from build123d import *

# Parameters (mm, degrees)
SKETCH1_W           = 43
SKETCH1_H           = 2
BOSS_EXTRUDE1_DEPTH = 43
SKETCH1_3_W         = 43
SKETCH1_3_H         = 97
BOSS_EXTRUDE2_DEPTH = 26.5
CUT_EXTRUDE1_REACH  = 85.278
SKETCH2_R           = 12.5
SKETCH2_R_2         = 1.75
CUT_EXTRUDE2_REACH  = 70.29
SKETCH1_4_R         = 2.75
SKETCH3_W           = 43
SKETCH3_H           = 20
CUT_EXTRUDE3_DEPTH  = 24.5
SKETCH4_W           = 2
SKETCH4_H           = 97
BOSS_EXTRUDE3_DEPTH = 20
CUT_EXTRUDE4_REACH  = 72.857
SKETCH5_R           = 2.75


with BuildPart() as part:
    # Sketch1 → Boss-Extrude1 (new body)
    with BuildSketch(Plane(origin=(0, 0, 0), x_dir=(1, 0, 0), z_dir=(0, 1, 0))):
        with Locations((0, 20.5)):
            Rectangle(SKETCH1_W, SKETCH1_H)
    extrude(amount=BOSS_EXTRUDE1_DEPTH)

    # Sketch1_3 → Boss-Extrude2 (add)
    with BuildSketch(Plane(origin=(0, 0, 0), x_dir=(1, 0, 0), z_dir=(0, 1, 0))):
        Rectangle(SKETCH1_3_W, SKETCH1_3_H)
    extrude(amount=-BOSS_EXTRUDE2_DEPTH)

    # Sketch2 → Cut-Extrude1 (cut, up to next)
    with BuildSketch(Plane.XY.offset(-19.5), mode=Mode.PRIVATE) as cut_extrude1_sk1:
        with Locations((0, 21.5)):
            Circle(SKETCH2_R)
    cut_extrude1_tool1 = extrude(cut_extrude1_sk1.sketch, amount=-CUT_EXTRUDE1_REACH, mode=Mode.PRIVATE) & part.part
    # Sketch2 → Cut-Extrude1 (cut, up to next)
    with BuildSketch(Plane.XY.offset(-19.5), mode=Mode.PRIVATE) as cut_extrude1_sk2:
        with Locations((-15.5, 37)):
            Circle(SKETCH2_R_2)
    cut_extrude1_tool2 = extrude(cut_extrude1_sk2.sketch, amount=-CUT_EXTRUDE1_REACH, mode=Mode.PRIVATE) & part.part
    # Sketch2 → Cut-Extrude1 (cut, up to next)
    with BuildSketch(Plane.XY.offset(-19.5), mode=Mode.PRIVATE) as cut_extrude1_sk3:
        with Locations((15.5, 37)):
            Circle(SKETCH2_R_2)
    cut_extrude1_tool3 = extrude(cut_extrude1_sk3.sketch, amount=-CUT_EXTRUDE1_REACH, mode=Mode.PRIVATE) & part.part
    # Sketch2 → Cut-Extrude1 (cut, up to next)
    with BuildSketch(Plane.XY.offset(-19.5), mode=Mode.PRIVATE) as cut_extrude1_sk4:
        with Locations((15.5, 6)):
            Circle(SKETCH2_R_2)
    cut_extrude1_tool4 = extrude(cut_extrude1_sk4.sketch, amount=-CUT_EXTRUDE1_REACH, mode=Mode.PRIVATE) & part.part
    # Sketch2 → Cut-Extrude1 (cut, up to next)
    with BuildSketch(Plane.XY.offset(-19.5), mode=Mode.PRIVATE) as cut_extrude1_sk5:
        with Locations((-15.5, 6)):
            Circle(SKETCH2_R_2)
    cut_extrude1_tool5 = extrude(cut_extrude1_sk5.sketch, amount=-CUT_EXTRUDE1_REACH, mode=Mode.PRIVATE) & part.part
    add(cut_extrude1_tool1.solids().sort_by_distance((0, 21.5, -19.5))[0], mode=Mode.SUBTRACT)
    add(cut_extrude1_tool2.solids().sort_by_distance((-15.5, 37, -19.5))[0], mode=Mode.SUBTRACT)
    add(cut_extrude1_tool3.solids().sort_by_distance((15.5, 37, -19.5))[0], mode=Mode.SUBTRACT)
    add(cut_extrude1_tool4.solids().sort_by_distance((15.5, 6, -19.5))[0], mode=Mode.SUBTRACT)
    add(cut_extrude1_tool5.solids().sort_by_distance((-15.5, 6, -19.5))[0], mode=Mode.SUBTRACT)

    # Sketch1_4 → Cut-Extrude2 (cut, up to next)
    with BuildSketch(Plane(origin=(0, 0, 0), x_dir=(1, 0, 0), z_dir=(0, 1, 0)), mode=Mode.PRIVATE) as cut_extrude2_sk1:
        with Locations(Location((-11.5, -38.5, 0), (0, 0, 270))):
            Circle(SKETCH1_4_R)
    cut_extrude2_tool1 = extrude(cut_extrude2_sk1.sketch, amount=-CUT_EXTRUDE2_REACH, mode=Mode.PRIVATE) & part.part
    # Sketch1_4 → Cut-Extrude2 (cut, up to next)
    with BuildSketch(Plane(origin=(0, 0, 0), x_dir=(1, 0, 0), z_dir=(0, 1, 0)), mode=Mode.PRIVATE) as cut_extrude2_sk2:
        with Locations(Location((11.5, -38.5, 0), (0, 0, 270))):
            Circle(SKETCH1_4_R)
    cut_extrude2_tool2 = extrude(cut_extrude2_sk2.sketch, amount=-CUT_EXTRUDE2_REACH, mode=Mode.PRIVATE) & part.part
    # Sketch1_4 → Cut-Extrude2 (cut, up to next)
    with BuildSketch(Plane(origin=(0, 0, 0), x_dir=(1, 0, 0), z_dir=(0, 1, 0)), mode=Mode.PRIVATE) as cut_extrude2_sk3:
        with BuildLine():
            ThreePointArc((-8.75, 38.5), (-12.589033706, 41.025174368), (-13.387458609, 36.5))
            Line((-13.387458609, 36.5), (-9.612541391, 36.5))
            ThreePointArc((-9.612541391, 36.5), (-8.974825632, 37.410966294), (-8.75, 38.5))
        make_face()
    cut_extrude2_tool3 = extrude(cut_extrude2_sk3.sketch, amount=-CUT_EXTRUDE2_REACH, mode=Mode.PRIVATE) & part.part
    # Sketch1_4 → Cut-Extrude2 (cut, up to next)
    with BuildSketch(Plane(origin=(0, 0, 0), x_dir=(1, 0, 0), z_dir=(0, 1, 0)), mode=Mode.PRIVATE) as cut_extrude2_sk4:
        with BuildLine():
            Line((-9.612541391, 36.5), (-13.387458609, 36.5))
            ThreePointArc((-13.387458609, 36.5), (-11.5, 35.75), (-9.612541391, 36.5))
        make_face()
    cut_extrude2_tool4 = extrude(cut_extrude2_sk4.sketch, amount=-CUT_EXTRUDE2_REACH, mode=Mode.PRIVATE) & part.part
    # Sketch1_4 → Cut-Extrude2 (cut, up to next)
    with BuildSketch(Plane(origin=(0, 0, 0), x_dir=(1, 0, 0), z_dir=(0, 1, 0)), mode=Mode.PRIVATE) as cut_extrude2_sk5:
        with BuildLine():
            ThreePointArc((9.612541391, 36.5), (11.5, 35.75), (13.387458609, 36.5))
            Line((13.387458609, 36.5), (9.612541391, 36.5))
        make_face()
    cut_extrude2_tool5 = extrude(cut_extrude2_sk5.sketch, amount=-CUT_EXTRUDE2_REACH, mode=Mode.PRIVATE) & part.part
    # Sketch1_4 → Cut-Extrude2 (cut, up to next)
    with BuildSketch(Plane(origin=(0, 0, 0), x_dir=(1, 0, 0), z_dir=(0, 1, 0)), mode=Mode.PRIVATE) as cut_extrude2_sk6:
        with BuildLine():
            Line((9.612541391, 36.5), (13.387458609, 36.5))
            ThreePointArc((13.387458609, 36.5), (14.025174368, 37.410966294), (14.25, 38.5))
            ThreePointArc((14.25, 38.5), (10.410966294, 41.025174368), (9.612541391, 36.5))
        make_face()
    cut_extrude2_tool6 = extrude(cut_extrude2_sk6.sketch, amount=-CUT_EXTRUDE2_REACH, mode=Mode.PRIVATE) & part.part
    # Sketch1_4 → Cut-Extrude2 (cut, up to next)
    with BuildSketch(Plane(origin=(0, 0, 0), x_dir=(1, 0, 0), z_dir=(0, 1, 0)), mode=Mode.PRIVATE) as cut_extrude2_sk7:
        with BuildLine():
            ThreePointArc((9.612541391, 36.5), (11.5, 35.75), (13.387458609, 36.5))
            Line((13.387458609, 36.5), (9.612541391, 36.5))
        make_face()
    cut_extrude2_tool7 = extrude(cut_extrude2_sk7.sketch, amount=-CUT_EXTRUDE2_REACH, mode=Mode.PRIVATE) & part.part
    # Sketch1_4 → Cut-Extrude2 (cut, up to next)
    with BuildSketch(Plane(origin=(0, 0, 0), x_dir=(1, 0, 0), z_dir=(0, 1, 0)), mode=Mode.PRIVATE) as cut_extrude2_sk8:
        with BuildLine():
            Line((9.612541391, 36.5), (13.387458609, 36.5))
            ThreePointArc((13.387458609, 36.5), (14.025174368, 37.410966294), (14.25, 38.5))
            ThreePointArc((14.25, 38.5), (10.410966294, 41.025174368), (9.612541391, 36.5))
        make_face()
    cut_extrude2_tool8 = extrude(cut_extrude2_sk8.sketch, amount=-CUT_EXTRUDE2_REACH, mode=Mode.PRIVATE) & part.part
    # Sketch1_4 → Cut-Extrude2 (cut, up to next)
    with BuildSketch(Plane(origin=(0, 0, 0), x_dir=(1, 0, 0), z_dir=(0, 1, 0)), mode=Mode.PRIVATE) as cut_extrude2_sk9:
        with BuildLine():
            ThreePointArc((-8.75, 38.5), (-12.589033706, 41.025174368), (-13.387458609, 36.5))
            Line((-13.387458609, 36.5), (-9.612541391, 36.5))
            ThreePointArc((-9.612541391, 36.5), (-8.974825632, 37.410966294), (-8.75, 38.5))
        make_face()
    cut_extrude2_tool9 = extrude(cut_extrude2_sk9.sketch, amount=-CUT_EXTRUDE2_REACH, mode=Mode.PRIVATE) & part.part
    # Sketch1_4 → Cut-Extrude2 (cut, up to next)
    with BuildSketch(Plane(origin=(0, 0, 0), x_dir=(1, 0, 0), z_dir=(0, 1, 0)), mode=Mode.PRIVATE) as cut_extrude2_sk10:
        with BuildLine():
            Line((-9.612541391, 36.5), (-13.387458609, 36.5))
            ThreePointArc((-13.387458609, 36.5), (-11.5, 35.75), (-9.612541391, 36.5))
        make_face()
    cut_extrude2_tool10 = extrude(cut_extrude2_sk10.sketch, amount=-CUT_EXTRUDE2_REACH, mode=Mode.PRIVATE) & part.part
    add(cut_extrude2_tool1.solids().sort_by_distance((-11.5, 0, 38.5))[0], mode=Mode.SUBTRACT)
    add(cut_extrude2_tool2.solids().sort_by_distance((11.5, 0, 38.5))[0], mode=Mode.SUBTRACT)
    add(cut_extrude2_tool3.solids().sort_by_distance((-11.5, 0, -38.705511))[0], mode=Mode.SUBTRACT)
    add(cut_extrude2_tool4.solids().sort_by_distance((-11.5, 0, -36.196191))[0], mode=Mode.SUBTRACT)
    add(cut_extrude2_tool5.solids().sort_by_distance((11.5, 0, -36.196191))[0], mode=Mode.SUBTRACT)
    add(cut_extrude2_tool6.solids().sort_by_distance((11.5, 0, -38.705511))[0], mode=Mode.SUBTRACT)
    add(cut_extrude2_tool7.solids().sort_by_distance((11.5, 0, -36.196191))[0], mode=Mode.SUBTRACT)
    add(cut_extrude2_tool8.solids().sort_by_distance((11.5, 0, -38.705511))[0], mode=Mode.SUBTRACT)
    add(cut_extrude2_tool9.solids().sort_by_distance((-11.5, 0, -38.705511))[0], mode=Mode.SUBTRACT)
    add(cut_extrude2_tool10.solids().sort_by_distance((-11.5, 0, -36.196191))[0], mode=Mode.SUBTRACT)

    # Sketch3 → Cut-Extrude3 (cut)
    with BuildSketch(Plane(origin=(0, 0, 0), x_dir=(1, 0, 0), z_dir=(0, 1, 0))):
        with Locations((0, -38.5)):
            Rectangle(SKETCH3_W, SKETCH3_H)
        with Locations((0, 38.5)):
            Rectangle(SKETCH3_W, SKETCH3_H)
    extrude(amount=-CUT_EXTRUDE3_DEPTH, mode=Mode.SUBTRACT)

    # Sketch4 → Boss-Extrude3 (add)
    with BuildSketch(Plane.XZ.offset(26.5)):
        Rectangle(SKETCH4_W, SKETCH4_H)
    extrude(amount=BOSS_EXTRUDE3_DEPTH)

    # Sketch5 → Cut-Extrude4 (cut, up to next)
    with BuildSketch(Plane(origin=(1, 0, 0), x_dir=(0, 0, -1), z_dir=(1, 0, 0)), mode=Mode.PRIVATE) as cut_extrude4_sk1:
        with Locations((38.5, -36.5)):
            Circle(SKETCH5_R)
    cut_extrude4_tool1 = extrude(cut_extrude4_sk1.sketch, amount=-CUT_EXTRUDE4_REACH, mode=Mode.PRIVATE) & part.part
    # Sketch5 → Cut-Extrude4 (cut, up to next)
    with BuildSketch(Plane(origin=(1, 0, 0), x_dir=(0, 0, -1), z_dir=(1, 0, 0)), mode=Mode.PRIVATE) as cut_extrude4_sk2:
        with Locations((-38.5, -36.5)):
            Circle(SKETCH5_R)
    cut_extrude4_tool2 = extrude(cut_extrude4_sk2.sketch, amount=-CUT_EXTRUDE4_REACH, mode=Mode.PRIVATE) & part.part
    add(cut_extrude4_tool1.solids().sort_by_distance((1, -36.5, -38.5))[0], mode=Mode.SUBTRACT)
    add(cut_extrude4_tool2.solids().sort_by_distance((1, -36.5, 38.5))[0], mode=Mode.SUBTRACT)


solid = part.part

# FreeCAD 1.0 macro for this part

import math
import FreeCAD as App
import Part
import Sketcher
from FreeCAD import Vector
Q = App.Units.Quantity


def add_polygon(sketch, points):
    """Adds a closed chain of lines whose ends are joined by coincident constraints."""
    first, n = sketch.GeometryCount, len(points)
    for a, b in zip(points, points[1:] + points[:1]):
        sketch.addGeometry(Part.LineSegment(App.Vector(*a, 0), App.Vector(*b, 0)), False)
    for i in range(n):
        sketch.addConstraint(Sketcher.Constraint("Coincident", first + i, 2, first + (i + 1) % n, 1))

doc = App.newDocument("Part")
body = doc.addObject("PartDesign::Body", "Body")

sketch1 = body.newObject("Sketcher::SketchObject", "Sketch")
sketch1.AttachmentSupport = (doc.getObject("XZ_Plane"), [""])
sketch1.MapMode = "FlatFace"
add_polygon(sketch1, [(-21.5, -21.5), (-21.5, -19.5), (21.5, -19.5), (21.5, -21.5)])
sketch1.addConstraint(Sketcher.Constraint("Vertical", 0))
sketch1.addConstraint(Sketcher.Constraint("Horizontal", 1))
sketch1.addConstraint(Sketcher.Constraint("Vertical", 2))
sketch1.addConstraint(Sketcher.Constraint("Horizontal", 3))
sketch1.addConstraint(Sketcher.Constraint("DistanceX", 1, 1, 1, 2, Q("43 mm")))
sketch1.addConstraint(Sketcher.Constraint("DistanceY", 0, 1, 0, 2, Q("2 mm")))
sketch1.addConstraint(Sketcher.Constraint("DistanceX", 0, 2, -1, 1, Q("21.5 mm")))
sketch1.addConstraint(Sketcher.Constraint("DistanceY", 0, 2, -1, 1, Q("19.5 mm")))
pad1 = body.newObject("PartDesign::Pad", "Pad")
pad1.Profile = sketch1
pad1.Length = 43
pad1.Reversed = True

sketch2 = body.newObject("Sketcher::SketchObject", "Sketch001")
sketch2.AttachmentSupport = (doc.getObject("XZ_Plane"), [""])
sketch2.MapMode = "FlatFace"
add_polygon(sketch2, [(-22, -48), (-22, 48), (22, 48), (22, -48)])
sketch2.addConstraint(Sketcher.Constraint("Vertical", 0))
sketch2.addConstraint(Sketcher.Constraint("Horizontal", 1))
sketch2.addConstraint(Sketcher.Constraint("Vertical", 2))
sketch2.addConstraint(Sketcher.Constraint("Horizontal", 3))
sketch2.addConstraint(Sketcher.Constraint("Symmetric", 0, 2, 2, 2, -1, 1))
sketch2.addConstraint(Sketcher.Constraint("DistanceX", 1, 1, 1, 2, Q("43 mm")))
sketch2.addConstraint(Sketcher.Constraint("DistanceY", 0, 1, 0, 2, Q("97 mm")))
pad2 = body.newObject("PartDesign::Pad", "Pad001")
pad2.Profile = sketch2
pad2.Length = 26.5

sketch3 = body.newObject("Sketcher::SketchObject", "Sketch002")
sketch3.AttachmentSupport = (doc.getObject("XY_Plane"), [""])
sketch3.MapMode = "FlatFace"
sketch3.AttachmentOffset = App.Placement(Vector(0, 0, -19.5), App.Rotation())
sketch3.addGeometry(Part.Circle(Vector(0, 22, 0), Vector(0, 0, 1), 12), False)
sketch3.addConstraint(Sketcher.Constraint("PointOnObject", 0, 3, -2))
sketch3.addConstraint(Sketcher.Constraint("Diameter", 0, Q("25 mm")))
sketch3.addConstraint(Sketcher.Constraint("DistanceY", -1, 1, 0, 3, Q("21.5 mm")))
pocket1 = body.newObject("PartDesign::Pocket", "Pocket")
pocket1.Profile = sketch3
pocket1.Type = "UpToFirst"

sketch4 = body.newObject("Sketcher::SketchObject", "Sketch003")
sketch4.AttachmentSupport = (doc.getObject("XY_Plane"), [""])
sketch4.MapMode = "FlatFace"
sketch4.AttachmentOffset = App.Placement(Vector(0, 0, -19.5), App.Rotation())
sketch4.addGeometry(Part.Circle(Vector(-15.5, 37, 0), Vector(0, 0, 1), 1.8), False)
sketch4.addConstraint(Sketcher.Constraint("Diameter", 0, Q("3.5 mm")))
sketch4.addConstraint(Sketcher.Constraint("DistanceY", -1, 1, 0, 3, Q("37 mm")))
sketch4.addConstraint(Sketcher.Constraint("DistanceX", 0, 3, -1, 1, Q("15.5 mm")))
pocket2 = body.newObject("PartDesign::Pocket", "Pocket001")
pocket2.Profile = sketch4
pocket2.Type = "UpToFirst"

sketch5 = body.newObject("Sketcher::SketchObject", "Sketch004")
sketch5.AttachmentSupport = (doc.getObject("XY_Plane"), [""])
sketch5.MapMode = "FlatFace"
sketch5.AttachmentOffset = App.Placement(Vector(0, 0, -19.5), App.Rotation())
sketch5.addGeometry(Part.Circle(Vector(15.5, 37, 0), Vector(0, 0, 1), 1.8), False)
sketch5.addConstraint(Sketcher.Constraint("Diameter", 0, Q("3.5 mm")))
sketch5.addConstraint(Sketcher.Constraint("DistanceY", -1, 1, 0, 3, Q("37 mm")))
sketch5.addConstraint(Sketcher.Constraint("DistanceX", -1, 1, 0, 3, Q("15.5 mm")))
pocket3 = body.newObject("PartDesign::Pocket", "Pocket002")
pocket3.Profile = sketch5
pocket3.Type = "UpToFirst"

sketch6 = body.newObject("Sketcher::SketchObject", "Sketch005")
sketch6.AttachmentSupport = (doc.getObject("XY_Plane"), [""])
sketch6.MapMode = "FlatFace"
sketch6.AttachmentOffset = App.Placement(Vector(0, 0, -19.5), App.Rotation())
sketch6.addGeometry(Part.Circle(Vector(15.5, 6, 0), Vector(0, 0, 1), 1.8), False)
sketch6.addConstraint(Sketcher.Constraint("Diameter", 0, Q("3.5 mm")))
sketch6.addConstraint(Sketcher.Constraint("DistanceY", -1, 1, 0, 3, Q("6 mm")))
sketch6.addConstraint(Sketcher.Constraint("DistanceX", -1, 1, 0, 3, Q("15.5 mm")))
pocket4 = body.newObject("PartDesign::Pocket", "Pocket003")
pocket4.Profile = sketch6
pocket4.Type = "UpToFirst"

sketch7 = body.newObject("Sketcher::SketchObject", "Sketch006")
sketch7.AttachmentSupport = (doc.getObject("XY_Plane"), [""])
sketch7.MapMode = "FlatFace"
sketch7.AttachmentOffset = App.Placement(Vector(0, 0, -19.5), App.Rotation())
sketch7.addGeometry(Part.Circle(Vector(-15.5, 6, 0), Vector(0, 0, 1), 1.8), False)
sketch7.addConstraint(Sketcher.Constraint("Diameter", 0, Q("3.5 mm")))
sketch7.addConstraint(Sketcher.Constraint("DistanceY", -1, 1, 0, 3, Q("6 mm")))
sketch7.addConstraint(Sketcher.Constraint("DistanceX", 0, 3, -1, 1, Q("15.5 mm")))
pocket5 = body.newObject("PartDesign::Pocket", "Pocket004")
pocket5.Profile = sketch7
pocket5.Type = "UpToFirst"

sketch8 = body.newObject("Sketcher::SketchObject", "Sketch007")
sketch8.AttachmentSupport = (doc.getObject("XZ_Plane"), [""])
sketch8.MapMode = "FlatFace"
sketch8.addGeometry(Part.Circle(Vector(-11.5, 38.5, 0), Vector(0, 0, 1), 2.8), False)
sketch8.addConstraint(Sketcher.Constraint("Diameter", 0, Q("5.5 mm")))
sketch8.addConstraint(Sketcher.Constraint("DistanceX", 0, 3, -1, 1, Q("11.5 mm")))
sketch8.addConstraint(Sketcher.Constraint("DistanceY", -1, 1, 0, 3, Q("38.5 mm")))
pocket6 = body.newObject("PartDesign::Pocket", "Pocket005")
pocket6.Profile = sketch8
pocket6.Type = "UpToFirst"
pocket6.Reversed = True

sketch9 = body.newObject("Sketcher::SketchObject", "Sketch008")
sketch9.AttachmentSupport = (doc.getObject("XZ_Plane"), [""])
sketch9.MapMode = "FlatFace"
sketch9.addGeometry(Part.Circle(Vector(11.5, 38.5, 0), Vector(0, 0, 1), 2.8), False)
sketch9.addConstraint(Sketcher.Constraint("Diameter", 0, Q("5.5 mm")))
sketch9.addConstraint(Sketcher.Constraint("DistanceX", -1, 1, 0, 3, Q("11.5 mm")))
sketch9.addConstraint(Sketcher.Constraint("DistanceY", -1, 1, 0, 3, Q("38.5 mm")))
pocket7 = body.newObject("PartDesign::Pocket", "Pocket006")
pocket7.Profile = sketch9
pocket7.Type = "UpToFirst"
pocket7.Reversed = True

sketch10 = body.newObject("Sketcher::SketchObject", "Sketch009")
sketch10.AttachmentSupport = (doc.getObject("XZ_Plane"), [""])
sketch10.MapMode = "FlatFace"
sketch10.addGeometry(Part.ArcOfCircle(Part.Circle(Vector(-11.5, -38.5, 0), Vector(0, 0, 1), 2.8), math.radians(133), math.radians(360)), False)
sketch10.addGeometry(Part.LineSegment(Vector(-13.4, -36.5, 0), Vector(-9.6, -36.5, 0)), False)
sketch10.addGeometry(Part.ArcOfCircle(Part.Circle(Vector(-11.5, -38.5, 0), Vector(0, 0, 1), 2.7), math.radians(0), math.radians(47)), False)
sketch10.addConstraint(Sketcher.Constraint("Coincident", 0, 1, 1, 1))
sketch10.addConstraint(Sketcher.Constraint("Coincident", 1, 2, 2, 2))
sketch10.addConstraint(Sketcher.Constraint("Tangent", 2, 1, 0, 2))
sketch10.addConstraint(Sketcher.Constraint("Horizontal", 1))
sketch10.addConstraint(Sketcher.Constraint("Equal", 0, 2))
sketch10.addConstraint(Sketcher.Constraint("Horizontal", 0, 3, 2, 1))
sketch10.addConstraint(Sketcher.Constraint("Radius", 0, Q("2.75 mm")))
sketch10.addConstraint(Sketcher.Constraint("DistanceY", 0, 3, 0, 1, Q("2 mm")))
sketch10.addConstraint(Sketcher.Constraint("DistanceX", 0, 3, -1, 1, Q("11.5 mm")))
sketch10.addConstraint(Sketcher.Constraint("DistanceY", 0, 3, -1, 1, Q("38.5 mm")))
pocket8 = body.newObject("PartDesign::Pocket", "Pocket007")
pocket8.Profile = sketch10
pocket8.Type = "UpToFirst"
pocket8.Reversed = True

sketch11 = body.newObject("Sketcher::SketchObject", "Sketch010")
sketch11.AttachmentSupport = (doc.getObject("XZ_Plane"), [""])
sketch11.MapMode = "FlatFace"
sketch11.addGeometry(Part.LineSegment(Vector(-9.6, -36.5, 0), Vector(-13.4, -36.5, 0)), False)
sketch11.addGeometry(Part.ArcOfCircle(Part.Circle(Vector(-11.5, -38.5, 0), Vector(0, 0, 1), 2.8), math.radians(47), math.radians(133)), False)
sketch11.addConstraint(Sketcher.Constraint("Coincident", 0, 1, 1, 1))
sketch11.addConstraint(Sketcher.Constraint("Coincident", 1, 2, 0, 2))
sketch11.addConstraint(Sketcher.Constraint("Horizontal", 0))
sketch11.addConstraint(Sketcher.Constraint("Radius", 1, Q("2.75 mm")))
sketch11.addConstraint(Sketcher.Constraint("DistanceY", 1, 3, 0, 1, Q("2 mm")))
sketch11.addConstraint(Sketcher.Constraint("DistanceX", 1, 3, -1, 1, Q("11.5 mm")))
sketch11.addConstraint(Sketcher.Constraint("DistanceY", 1, 3, -1, 1, Q("38.5 mm")))
pocket9 = body.newObject("PartDesign::Pocket", "Pocket008")
pocket9.Profile = sketch11
pocket9.Type = "UpToFirst"
pocket9.Reversed = True

sketch12 = body.newObject("Sketcher::SketchObject", "Sketch011")
sketch12.AttachmentSupport = (doc.getObject("XZ_Plane"), [""])
sketch12.MapMode = "FlatFace"
sketch12.addGeometry(Part.ArcOfCircle(Part.Circle(Vector(11.5, -38.5, 0), Vector(0, 0, 1), 2.8), math.radians(47), math.radians(133)), False)
sketch12.addGeometry(Part.LineSegment(Vector(13.4, -36.5, 0), Vector(9.6, -36.5, 0)), False)
sketch12.addConstraint(Sketcher.Constraint("Coincident", 0, 1, 1, 1))
sketch12.addConstraint(Sketcher.Constraint("Coincident", 1, 2, 0, 2))
sketch12.addConstraint(Sketcher.Constraint("Horizontal", 1))
sketch12.addConstraint(Sketcher.Constraint("Radius", 0, Q("2.75 mm")))
sketch12.addConstraint(Sketcher.Constraint("DistanceY", 0, 3, 0, 1, Q("2 mm")))
sketch12.addConstraint(Sketcher.Constraint("DistanceX", -1, 1, 0, 3, Q("11.5 mm")))
sketch12.addConstraint(Sketcher.Constraint("DistanceY", 0, 3, -1, 1, Q("38.5 mm")))
pocket10 = body.newObject("PartDesign::Pocket", "Pocket009")
pocket10.Profile = sketch12
pocket10.Type = "UpToFirst"
pocket10.Reversed = True

sketch13 = body.newObject("Sketcher::SketchObject", "Sketch012")
sketch13.AttachmentSupport = (doc.getObject("XZ_Plane"), [""])
sketch13.MapMode = "FlatFace"
sketch13.addGeometry(Part.LineSegment(Vector(9.6, -36.5, 0), Vector(13.4, -36.5, 0)), False)
sketch13.addGeometry(Part.ArcOfCircle(Part.Circle(Vector(11.5, -38.5, 0), Vector(0, 0, 1), 2.7), math.radians(0), math.radians(47)), False)
sketch13.addGeometry(Part.ArcOfCircle(Part.Circle(Vector(11.5, -38.5, 0), Vector(0, 0, 1), 2.8), math.radians(133), math.radians(360)), False)
sketch13.addConstraint(Sketcher.Constraint("Coincident", 0, 2, 1, 2))
sketch13.addConstraint(Sketcher.Constraint("Tangent", 1, 1, 2, 2))
sketch13.addConstraint(Sketcher.Constraint("Coincident", 2, 1, 0, 1))
sketch13.addConstraint(Sketcher.Constraint("Horizontal", 0))
sketch13.addConstraint(Sketcher.Constraint("Equal", 1, 2))
sketch13.addConstraint(Sketcher.Constraint("Horizontal", 2, 3, 1, 1))
sketch13.addConstraint(Sketcher.Constraint("Radius", 1, Q("2.75 mm")))
sketch13.addConstraint(Sketcher.Constraint("DistanceY", 1, 3, 0, 2, Q("2 mm")))
sketch13.addConstraint(Sketcher.Constraint("DistanceX", -1, 1, 1, 3, Q("11.5 mm")))
sketch13.addConstraint(Sketcher.Constraint("DistanceY", 1, 3, -1, 1, Q("38.5 mm")))
pocket11 = body.newObject("PartDesign::Pocket", "Pocket010")
pocket11.Profile = sketch13
pocket11.Type = "UpToFirst"
pocket11.Reversed = True

sketch14 = body.newObject("Sketcher::SketchObject", "Sketch013")
sketch14.AttachmentSupport = (doc.getObject("XZ_Plane"), [""])
sketch14.MapMode = "FlatFace"
sketch14.addGeometry(Part.ArcOfCircle(Part.Circle(Vector(11.5, -38.5, 0), Vector(0, 0, 1), 2.8), math.radians(47), math.radians(133)), False)
sketch14.addGeometry(Part.LineSegment(Vector(13.4, -36.5, 0), Vector(9.6, -36.5, 0)), False)
sketch14.addConstraint(Sketcher.Constraint("Coincident", 0, 1, 1, 1))
sketch14.addConstraint(Sketcher.Constraint("Coincident", 1, 2, 0, 2))
sketch14.addConstraint(Sketcher.Constraint("Horizontal", 1))
sketch14.addConstraint(Sketcher.Constraint("Radius", 0, Q("2.75 mm")))
sketch14.addConstraint(Sketcher.Constraint("DistanceY", 0, 3, 0, 1, Q("2 mm")))
sketch14.addConstraint(Sketcher.Constraint("DistanceX", -1, 1, 0, 3, Q("11.5 mm")))
sketch14.addConstraint(Sketcher.Constraint("DistanceY", 0, 3, -1, 1, Q("38.5 mm")))
pocket12 = body.newObject("PartDesign::Pocket", "Pocket011")
pocket12.Profile = sketch14
pocket12.Length = 26.5
pocket12.Reversed = True

sketch15 = body.newObject("Sketcher::SketchObject", "Sketch014")
sketch15.AttachmentSupport = (doc.getObject("XZ_Plane"), [""])
sketch15.MapMode = "FlatFace"
sketch15.addGeometry(Part.LineSegment(Vector(9.6, -36.5, 0), Vector(13.4, -36.5, 0)), False)
sketch15.addGeometry(Part.ArcOfCircle(Part.Circle(Vector(11.5, -38.5, 0), Vector(0, 0, 1), 2.7), math.radians(0), math.radians(47)), False)
sketch15.addGeometry(Part.ArcOfCircle(Part.Circle(Vector(11.5, -38.5, 0), Vector(0, 0, 1), 2.8), math.radians(133), math.radians(360)), False)
sketch15.addConstraint(Sketcher.Constraint("Coincident", 0, 2, 1, 2))
sketch15.addConstraint(Sketcher.Constraint("Tangent", 1, 1, 2, 2))
sketch15.addConstraint(Sketcher.Constraint("Coincident", 2, 1, 0, 1))
sketch15.addConstraint(Sketcher.Constraint("Horizontal", 0))
sketch15.addConstraint(Sketcher.Constraint("Equal", 1, 2))
sketch15.addConstraint(Sketcher.Constraint("Horizontal", 2, 3, 1, 1))
sketch15.addConstraint(Sketcher.Constraint("Radius", 1, Q("2.75 mm")))
sketch15.addConstraint(Sketcher.Constraint("DistanceY", 1, 3, 0, 2, Q("2 mm")))
sketch15.addConstraint(Sketcher.Constraint("DistanceX", -1, 1, 1, 3, Q("11.5 mm")))
sketch15.addConstraint(Sketcher.Constraint("DistanceY", 1, 3, -1, 1, Q("38.5 mm")))
pocket13 = body.newObject("PartDesign::Pocket", "Pocket012")
pocket13.Profile = sketch15
pocket13.Length = 26.5
pocket13.Reversed = True

sketch16 = body.newObject("Sketcher::SketchObject", "Sketch015")
sketch16.AttachmentSupport = (doc.getObject("XZ_Plane"), [""])
sketch16.MapMode = "FlatFace"
sketch16.addGeometry(Part.ArcOfCircle(Part.Circle(Vector(-11.5, -38.5, 0), Vector(0, 0, 1), 2.8), math.radians(133), math.radians(360)), False)
sketch16.addGeometry(Part.LineSegment(Vector(-13.4, -36.5, 0), Vector(-9.6, -36.5, 0)), False)
sketch16.addGeometry(Part.ArcOfCircle(Part.Circle(Vector(-11.5, -38.5, 0), Vector(0, 0, 1), 2.7), math.radians(0), math.radians(47)), False)
sketch16.addConstraint(Sketcher.Constraint("Coincident", 0, 1, 1, 1))
sketch16.addConstraint(Sketcher.Constraint("Coincident", 1, 2, 2, 2))
sketch16.addConstraint(Sketcher.Constraint("Tangent", 2, 1, 0, 2))
sketch16.addConstraint(Sketcher.Constraint("Horizontal", 1))
sketch16.addConstraint(Sketcher.Constraint("Equal", 0, 2))
sketch16.addConstraint(Sketcher.Constraint("Horizontal", 0, 3, 2, 1))
sketch16.addConstraint(Sketcher.Constraint("Radius", 0, Q("2.75 mm")))
sketch16.addConstraint(Sketcher.Constraint("DistanceY", 0, 3, 0, 1, Q("2 mm")))
sketch16.addConstraint(Sketcher.Constraint("DistanceX", 0, 3, -1, 1, Q("11.5 mm")))
sketch16.addConstraint(Sketcher.Constraint("DistanceY", 0, 3, -1, 1, Q("38.5 mm")))
pocket14 = body.newObject("PartDesign::Pocket", "Pocket013")
pocket14.Profile = sketch16
pocket14.Length = 26.5
pocket14.Reversed = True

sketch17 = body.newObject("Sketcher::SketchObject", "Sketch016")
sketch17.AttachmentSupport = (doc.getObject("XZ_Plane"), [""])
sketch17.MapMode = "FlatFace"
sketch17.addGeometry(Part.LineSegment(Vector(-9.6, -36.5, 0), Vector(-13.4, -36.5, 0)), False)
sketch17.addGeometry(Part.ArcOfCircle(Part.Circle(Vector(-11.5, -38.5, 0), Vector(0, 0, 1), 2.8), math.radians(47), math.radians(133)), False)
sketch17.addConstraint(Sketcher.Constraint("Coincident", 0, 1, 1, 1))
sketch17.addConstraint(Sketcher.Constraint("Coincident", 1, 2, 0, 2))
sketch17.addConstraint(Sketcher.Constraint("Horizontal", 0))
sketch17.addConstraint(Sketcher.Constraint("Radius", 1, Q("2.75 mm")))
sketch17.addConstraint(Sketcher.Constraint("DistanceY", 1, 3, 0, 1, Q("2 mm")))
sketch17.addConstraint(Sketcher.Constraint("DistanceX", 1, 3, -1, 1, Q("11.5 mm")))
sketch17.addConstraint(Sketcher.Constraint("DistanceY", 1, 3, -1, 1, Q("38.5 mm")))
pocket15 = body.newObject("PartDesign::Pocket", "Pocket014")
pocket15.Profile = sketch17
pocket15.Length = 26.5
pocket15.Reversed = True

sketch18 = body.newObject("Sketcher::SketchObject", "Sketch017")
sketch18.AttachmentSupport = (doc.getObject("XZ_Plane"), [""])
sketch18.MapMode = "FlatFace"
add_polygon(sketch18, [(-22, 28), (-22, 48), (22, 48), (22, 28)])
add_polygon(sketch18, [(-22, -48), (-22, -28), (22, -28), (22, -48)])
sketch18.addConstraint(Sketcher.Constraint("Vertical", 0))
sketch18.addConstraint(Sketcher.Constraint("Horizontal", 1))
sketch18.addConstraint(Sketcher.Constraint("Vertical", 2))
sketch18.addConstraint(Sketcher.Constraint("Horizontal", 3))
sketch18.addConstraint(Sketcher.Constraint("Vertical", 4))
sketch18.addConstraint(Sketcher.Constraint("Horizontal", 5))
sketch18.addConstraint(Sketcher.Constraint("Vertical", 6))
sketch18.addConstraint(Sketcher.Constraint("Horizontal", 7))
sketch18.addConstraint(Sketcher.Constraint("Symmetric", 2, 2, 4, 2, -1, 1))
sketch18.addConstraint(Sketcher.Constraint("Symmetric", 0, 2, 6, 2, -1, 1))
sketch18.addConstraint(Sketcher.Constraint("Vertical", 3, 2, 4, 2))
sketch18.addConstraint(Sketcher.Constraint("DistanceX", 1, 1, 1, 2, Q("43 mm")))
sketch18.addConstraint(Sketcher.Constraint("DistanceY", 0, 1, 0, 2, Q("20 mm")))
sketch18.addConstraint(Sketcher.Constraint("DistanceY", 4, 2, 3, 2, Q("57 mm")))
pocket16 = body.newObject("PartDesign::Pocket", "Pocket015")
pocket16.Profile = sketch18
pocket16.Length = 24.5
pocket16.Reversed = True

sketch19 = body.newObject("Sketcher::SketchObject", "Sketch018")
sketch19.AttachmentSupport = (doc.getObject("XZ_Plane"), [""])
sketch19.MapMode = "FlatFace"
sketch19.AttachmentOffset = App.Placement(Vector(0, 0, 26.5), App.Rotation())
add_polygon(sketch19, [(-1, 48.5), (-1, -48.5), (1, -48.5), (1, 48.5)])
sketch19.addConstraint(Sketcher.Constraint("Vertical", 0))
sketch19.addConstraint(Sketcher.Constraint("Horizontal", 1))
sketch19.addConstraint(Sketcher.Constraint("Vertical", 2))
sketch19.addConstraint(Sketcher.Constraint("Horizontal", 3))
sketch19.addConstraint(Sketcher.Constraint("Symmetric", 0, 2, 2, 2, -1, 1))
sketch19.addConstraint(Sketcher.Constraint("DistanceX", 1, 1, 1, 2, Q("2 mm")))
sketch19.addConstraint(Sketcher.Constraint("DistanceY", 0, 2, 0, 1, Q("97 mm")))
pad3 = body.newObject("PartDesign::Pad", "Pad002")
pad3.Profile = sketch19
pad3.Length = 20

sketch20 = body.newObject("Sketcher::SketchObject", "Sketch019")
sketch20.AttachmentSupport = (doc.getObject("YZ_Plane"), [""])
sketch20.MapMode = "FlatFace"
sketch20.AttachmentOffset = App.Placement(Vector(0, 0, 1), App.Rotation())
sketch20.addGeometry(Part.Circle(Vector(-36.5, -38.5, 0), Vector(0, 0, 1), 2.8), False)
sketch20.addConstraint(Sketcher.Constraint("Diameter", 0, Q("5.5 mm")))
sketch20.addConstraint(Sketcher.Constraint("DistanceX", 0, 3, -1, 1, Q("36.5 mm")))
sketch20.addConstraint(Sketcher.Constraint("DistanceY", 0, 3, -1, 1, Q("38.5 mm")))
pocket17 = body.newObject("PartDesign::Pocket", "Pocket016")
pocket17.Profile = sketch20
pocket17.Type = "UpToFirst"

sketch21 = body.newObject("Sketcher::SketchObject", "Sketch020")
sketch21.AttachmentSupport = (doc.getObject("YZ_Plane"), [""])
sketch21.MapMode = "FlatFace"
sketch21.AttachmentOffset = App.Placement(Vector(0, 0, 1), App.Rotation())
sketch21.addGeometry(Part.Circle(Vector(-36.5, 38.5, 0), Vector(0, 0, 1), 2.8), False)
sketch21.addConstraint(Sketcher.Constraint("Diameter", 0, Q("5.5 mm")))
sketch21.addConstraint(Sketcher.Constraint("DistanceX", 0, 3, -1, 1, Q("36.5 mm")))
sketch21.addConstraint(Sketcher.Constraint("DistanceY", -1, 1, 0, 3, Q("38.5 mm")))
pocket18 = body.newObject("PartDesign::Pocket", "Pocket017")
pocket18.Profile = sketch21
pocket18.Type = "UpToFirst"

doc.recompute()
